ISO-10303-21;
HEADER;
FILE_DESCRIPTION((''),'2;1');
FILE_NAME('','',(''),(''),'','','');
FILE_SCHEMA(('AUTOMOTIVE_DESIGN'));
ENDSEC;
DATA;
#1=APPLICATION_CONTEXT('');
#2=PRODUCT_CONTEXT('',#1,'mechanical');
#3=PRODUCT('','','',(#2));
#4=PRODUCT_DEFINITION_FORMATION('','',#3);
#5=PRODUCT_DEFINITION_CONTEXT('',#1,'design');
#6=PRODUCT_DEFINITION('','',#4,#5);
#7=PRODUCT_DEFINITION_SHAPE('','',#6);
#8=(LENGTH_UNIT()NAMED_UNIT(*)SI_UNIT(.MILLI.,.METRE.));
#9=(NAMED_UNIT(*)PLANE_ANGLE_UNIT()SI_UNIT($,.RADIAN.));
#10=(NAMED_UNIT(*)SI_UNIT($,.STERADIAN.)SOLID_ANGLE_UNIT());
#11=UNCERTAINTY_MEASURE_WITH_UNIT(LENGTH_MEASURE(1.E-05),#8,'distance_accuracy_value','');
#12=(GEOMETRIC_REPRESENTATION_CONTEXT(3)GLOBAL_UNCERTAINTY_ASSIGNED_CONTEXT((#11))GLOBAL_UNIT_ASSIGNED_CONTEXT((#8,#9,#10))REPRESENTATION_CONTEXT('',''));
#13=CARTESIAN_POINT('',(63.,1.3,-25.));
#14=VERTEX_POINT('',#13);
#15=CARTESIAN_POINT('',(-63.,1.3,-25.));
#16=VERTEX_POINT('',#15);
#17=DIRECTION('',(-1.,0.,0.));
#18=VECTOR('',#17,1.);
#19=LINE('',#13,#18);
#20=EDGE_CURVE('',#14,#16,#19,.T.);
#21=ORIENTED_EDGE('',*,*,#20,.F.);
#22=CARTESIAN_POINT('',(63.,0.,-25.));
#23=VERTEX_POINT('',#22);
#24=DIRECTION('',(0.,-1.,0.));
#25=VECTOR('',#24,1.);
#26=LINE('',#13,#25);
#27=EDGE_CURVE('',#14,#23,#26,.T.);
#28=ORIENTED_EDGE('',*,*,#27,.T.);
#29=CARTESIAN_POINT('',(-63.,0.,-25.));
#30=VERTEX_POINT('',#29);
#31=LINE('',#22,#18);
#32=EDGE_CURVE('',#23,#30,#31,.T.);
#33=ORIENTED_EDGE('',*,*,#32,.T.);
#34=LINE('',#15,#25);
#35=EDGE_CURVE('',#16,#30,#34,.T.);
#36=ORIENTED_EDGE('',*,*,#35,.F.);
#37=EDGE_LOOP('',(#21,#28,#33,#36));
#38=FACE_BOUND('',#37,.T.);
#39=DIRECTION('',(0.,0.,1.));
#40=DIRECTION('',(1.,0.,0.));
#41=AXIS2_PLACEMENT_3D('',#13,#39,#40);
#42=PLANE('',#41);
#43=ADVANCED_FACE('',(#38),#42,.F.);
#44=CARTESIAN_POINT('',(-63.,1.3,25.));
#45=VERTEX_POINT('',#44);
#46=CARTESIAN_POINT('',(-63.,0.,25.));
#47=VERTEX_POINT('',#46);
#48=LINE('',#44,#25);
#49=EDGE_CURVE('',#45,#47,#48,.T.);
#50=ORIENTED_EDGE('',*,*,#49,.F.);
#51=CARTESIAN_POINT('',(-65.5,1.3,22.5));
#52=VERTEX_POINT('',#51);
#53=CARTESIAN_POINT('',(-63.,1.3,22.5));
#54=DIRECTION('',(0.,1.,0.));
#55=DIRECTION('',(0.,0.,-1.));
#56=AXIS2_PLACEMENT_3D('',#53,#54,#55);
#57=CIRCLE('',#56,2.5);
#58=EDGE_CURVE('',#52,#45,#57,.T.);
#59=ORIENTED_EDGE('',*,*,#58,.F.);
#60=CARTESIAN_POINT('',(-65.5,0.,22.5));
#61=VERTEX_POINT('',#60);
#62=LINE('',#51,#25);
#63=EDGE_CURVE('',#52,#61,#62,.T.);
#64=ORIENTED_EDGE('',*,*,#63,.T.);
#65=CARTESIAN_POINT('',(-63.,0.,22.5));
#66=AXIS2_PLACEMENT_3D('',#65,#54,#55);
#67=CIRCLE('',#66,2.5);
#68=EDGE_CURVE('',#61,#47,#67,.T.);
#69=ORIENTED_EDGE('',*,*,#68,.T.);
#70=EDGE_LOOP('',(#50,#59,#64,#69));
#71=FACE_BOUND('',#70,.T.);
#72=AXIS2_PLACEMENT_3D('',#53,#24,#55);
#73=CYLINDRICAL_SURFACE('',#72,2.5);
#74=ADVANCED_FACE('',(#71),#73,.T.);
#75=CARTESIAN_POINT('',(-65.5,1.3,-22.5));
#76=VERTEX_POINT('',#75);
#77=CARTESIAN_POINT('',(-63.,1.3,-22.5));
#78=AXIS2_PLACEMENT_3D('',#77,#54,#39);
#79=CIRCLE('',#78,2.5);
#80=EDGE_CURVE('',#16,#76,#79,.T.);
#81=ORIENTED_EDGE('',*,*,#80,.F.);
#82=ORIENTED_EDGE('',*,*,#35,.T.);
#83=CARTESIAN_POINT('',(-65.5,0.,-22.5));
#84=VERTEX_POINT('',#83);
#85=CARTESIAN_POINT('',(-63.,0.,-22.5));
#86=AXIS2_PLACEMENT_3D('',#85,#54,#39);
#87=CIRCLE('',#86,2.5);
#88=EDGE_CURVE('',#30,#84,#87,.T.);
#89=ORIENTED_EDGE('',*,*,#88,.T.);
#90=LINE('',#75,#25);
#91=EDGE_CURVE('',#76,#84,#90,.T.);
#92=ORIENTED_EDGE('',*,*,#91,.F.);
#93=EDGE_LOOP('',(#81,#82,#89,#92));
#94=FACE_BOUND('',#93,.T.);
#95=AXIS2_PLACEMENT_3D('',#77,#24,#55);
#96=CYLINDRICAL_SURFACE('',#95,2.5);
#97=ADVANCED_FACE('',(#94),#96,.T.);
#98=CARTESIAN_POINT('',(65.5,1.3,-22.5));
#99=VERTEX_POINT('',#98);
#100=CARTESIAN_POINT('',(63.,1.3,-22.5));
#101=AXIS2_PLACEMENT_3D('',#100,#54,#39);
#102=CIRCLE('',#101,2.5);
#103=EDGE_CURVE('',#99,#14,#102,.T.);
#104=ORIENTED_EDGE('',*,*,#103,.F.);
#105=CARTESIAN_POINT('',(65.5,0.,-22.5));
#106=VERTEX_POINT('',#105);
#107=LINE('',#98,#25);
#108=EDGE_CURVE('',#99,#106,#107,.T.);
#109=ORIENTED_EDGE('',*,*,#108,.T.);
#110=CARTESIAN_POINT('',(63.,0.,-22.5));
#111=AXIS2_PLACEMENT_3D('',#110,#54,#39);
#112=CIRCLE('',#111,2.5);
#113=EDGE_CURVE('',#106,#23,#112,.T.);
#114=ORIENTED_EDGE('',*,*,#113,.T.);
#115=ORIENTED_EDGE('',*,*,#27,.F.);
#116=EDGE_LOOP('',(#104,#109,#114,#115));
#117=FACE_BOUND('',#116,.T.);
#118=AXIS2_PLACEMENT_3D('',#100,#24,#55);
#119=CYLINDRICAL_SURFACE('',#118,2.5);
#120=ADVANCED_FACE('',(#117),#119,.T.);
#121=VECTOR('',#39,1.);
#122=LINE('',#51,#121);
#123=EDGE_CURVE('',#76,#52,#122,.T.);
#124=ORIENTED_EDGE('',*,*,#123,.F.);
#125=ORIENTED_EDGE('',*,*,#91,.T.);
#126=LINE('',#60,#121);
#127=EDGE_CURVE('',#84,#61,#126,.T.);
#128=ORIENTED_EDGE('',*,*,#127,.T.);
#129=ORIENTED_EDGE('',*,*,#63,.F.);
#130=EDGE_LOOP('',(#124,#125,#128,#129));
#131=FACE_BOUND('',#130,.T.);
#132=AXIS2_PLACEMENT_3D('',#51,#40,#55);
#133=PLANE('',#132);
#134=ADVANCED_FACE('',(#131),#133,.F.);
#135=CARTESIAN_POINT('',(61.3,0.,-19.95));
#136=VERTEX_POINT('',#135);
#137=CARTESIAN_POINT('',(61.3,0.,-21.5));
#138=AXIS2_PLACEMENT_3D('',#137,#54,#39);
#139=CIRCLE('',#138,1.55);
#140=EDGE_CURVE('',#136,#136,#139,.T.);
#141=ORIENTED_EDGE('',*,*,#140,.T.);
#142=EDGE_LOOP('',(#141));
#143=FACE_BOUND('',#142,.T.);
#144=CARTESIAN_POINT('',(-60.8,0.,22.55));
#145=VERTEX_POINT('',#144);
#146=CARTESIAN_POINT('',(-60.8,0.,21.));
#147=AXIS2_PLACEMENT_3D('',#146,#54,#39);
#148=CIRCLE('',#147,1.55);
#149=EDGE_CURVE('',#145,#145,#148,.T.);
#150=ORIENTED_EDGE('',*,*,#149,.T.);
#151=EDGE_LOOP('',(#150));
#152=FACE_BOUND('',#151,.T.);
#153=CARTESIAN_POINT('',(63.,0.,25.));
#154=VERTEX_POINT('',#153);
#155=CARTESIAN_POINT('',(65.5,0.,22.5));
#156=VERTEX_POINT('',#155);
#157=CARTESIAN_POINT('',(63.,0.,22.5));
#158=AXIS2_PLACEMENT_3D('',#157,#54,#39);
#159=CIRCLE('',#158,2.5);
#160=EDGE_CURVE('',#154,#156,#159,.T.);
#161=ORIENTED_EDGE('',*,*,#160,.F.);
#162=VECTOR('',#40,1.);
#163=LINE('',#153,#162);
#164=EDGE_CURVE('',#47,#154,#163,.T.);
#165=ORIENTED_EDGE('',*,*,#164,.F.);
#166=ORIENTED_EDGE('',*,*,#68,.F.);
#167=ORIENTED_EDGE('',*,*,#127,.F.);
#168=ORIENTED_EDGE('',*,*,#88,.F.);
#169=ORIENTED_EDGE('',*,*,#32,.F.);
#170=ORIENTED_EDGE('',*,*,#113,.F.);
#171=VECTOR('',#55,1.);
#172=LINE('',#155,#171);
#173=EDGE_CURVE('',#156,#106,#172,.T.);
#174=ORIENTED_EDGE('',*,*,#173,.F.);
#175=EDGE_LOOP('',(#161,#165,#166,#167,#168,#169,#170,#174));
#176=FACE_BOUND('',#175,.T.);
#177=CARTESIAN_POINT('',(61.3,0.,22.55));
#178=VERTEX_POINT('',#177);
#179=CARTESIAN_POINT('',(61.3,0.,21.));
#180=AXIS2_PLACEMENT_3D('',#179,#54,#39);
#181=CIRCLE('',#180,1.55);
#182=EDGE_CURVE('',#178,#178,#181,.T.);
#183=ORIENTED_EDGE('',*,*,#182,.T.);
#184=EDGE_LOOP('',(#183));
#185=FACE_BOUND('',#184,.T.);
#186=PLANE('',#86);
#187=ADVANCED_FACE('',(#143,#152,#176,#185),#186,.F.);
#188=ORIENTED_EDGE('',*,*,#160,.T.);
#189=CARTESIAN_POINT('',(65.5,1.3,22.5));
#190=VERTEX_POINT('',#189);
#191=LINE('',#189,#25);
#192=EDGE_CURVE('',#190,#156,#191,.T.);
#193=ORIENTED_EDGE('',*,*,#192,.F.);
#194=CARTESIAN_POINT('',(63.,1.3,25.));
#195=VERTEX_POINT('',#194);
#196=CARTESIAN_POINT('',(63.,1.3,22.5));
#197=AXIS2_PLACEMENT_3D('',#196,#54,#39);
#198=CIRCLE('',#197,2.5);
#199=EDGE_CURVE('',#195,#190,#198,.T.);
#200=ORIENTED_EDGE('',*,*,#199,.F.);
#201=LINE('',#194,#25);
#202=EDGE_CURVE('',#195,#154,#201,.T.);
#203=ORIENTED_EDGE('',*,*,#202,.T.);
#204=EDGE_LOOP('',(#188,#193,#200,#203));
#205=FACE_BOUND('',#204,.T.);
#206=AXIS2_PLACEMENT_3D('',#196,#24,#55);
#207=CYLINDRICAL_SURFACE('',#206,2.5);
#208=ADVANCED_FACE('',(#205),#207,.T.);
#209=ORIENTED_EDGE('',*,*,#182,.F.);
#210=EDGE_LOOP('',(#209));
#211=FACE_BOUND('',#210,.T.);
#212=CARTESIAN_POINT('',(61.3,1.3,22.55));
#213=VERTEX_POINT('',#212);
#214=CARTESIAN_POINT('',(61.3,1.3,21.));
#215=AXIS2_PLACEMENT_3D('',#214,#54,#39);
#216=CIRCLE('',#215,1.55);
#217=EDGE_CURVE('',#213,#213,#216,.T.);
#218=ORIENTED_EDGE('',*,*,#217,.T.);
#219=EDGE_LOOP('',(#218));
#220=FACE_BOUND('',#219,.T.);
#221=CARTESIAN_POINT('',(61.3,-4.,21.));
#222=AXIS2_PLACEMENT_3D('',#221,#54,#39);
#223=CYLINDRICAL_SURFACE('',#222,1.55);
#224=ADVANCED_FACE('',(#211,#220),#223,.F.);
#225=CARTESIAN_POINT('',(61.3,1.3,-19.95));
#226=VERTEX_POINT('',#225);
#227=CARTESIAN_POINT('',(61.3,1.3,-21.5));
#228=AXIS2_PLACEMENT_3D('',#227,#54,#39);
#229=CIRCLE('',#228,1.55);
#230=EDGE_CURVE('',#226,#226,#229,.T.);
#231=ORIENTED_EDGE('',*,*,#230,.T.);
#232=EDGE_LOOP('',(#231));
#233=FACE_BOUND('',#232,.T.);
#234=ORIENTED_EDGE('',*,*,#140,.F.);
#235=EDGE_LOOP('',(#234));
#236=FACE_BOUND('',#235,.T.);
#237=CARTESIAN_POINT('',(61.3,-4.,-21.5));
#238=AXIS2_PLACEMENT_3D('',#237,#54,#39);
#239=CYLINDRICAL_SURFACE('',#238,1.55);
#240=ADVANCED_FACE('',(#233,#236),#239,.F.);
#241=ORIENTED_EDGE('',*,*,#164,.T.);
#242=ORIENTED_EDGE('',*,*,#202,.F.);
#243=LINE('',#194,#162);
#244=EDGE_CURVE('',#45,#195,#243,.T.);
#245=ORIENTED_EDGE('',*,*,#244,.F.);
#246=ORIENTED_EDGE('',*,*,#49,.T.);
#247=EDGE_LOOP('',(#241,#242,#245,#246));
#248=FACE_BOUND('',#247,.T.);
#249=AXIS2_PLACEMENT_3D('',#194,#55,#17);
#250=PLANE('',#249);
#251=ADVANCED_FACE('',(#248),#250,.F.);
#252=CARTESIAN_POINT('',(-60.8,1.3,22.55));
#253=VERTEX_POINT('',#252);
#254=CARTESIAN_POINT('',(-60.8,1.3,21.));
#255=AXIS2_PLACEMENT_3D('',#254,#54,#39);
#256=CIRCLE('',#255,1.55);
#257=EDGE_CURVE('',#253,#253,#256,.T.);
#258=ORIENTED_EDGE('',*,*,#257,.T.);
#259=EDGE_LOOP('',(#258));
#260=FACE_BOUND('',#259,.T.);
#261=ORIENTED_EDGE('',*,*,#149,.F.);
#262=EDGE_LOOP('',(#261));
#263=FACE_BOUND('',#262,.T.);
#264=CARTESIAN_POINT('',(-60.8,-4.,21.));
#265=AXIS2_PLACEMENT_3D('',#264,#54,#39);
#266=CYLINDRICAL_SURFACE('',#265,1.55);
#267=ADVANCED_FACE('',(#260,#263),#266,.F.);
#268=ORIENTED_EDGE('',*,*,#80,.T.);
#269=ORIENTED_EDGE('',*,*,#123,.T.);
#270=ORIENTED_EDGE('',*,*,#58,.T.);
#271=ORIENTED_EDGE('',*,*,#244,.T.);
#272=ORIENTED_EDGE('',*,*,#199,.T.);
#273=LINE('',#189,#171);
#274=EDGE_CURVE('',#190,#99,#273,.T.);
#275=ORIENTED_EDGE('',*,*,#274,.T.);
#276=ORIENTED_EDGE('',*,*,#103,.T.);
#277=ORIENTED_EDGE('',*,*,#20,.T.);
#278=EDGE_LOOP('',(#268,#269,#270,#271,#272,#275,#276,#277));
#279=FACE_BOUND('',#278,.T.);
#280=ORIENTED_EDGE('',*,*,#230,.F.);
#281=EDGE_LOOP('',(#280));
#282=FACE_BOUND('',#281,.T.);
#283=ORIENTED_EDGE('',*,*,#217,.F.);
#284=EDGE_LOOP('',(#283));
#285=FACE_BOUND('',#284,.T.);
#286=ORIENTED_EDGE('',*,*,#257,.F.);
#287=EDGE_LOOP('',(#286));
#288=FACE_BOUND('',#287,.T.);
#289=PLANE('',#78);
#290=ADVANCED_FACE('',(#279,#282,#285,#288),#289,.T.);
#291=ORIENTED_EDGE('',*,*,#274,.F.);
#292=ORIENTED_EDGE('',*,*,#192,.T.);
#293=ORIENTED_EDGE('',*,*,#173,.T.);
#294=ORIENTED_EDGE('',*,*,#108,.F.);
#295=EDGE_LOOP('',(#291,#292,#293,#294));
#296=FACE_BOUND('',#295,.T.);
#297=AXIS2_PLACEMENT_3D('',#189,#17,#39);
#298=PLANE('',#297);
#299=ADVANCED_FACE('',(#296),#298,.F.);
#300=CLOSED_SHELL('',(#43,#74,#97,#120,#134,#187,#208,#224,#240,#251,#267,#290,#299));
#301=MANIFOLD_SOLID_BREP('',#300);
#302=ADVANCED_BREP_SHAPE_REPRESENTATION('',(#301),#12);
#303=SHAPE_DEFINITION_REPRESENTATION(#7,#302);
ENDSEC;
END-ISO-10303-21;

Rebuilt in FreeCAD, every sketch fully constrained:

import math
import FreeCAD as App
import Part
import Sketcher

doc = App.newDocument("Part")
params = doc.addObject("Spreadsheet::Sheet", "Params")
for row, (alias, value) in enumerate([
    ("sketch1_radius", "2.5 mm"),
    ("sketch1_width", "126 mm"),
    ("sketch1_height", "45 mm"),
    ("pad1_length", "1.3 mm"),
    ("sketch2_diameter", "3.1 mm"),
    ("pocket1_length", "5.3 mm"),
], start=1):
    params.set(f"A{row}", alias)
    params.set(f"B{row}", "=" + value)
    params.setAlias(f"B{row}", alias)

body = doc.addObject("PartDesign::Body", "Body")

# Sketch on XZ plane
sketch1 = body.newObject("Sketcher::SketchObject", "Sketch")
sketch1.AttachmentSupport = (doc.getObject("XZ_Plane"), [""])
sketch1.MapMode = "FlatFace"
sketch1.addGeometry([
    Part.LineSegment(App.Vector(-63, 25, 0), App.Vector(63, 25, 0)),  # 0
    Part.ArcOfCircle(Part.Circle(App.Vector(63, 22.5, 0), App.Vector(0, 0, 1), 2.5), math.radians(0), math.radians(90)),  # 1
    Part.LineSegment(App.Vector(65.5, 22.5, 0), App.Vector(65.5, -22.5, 0)),  # 2
    Part.ArcOfCircle(Part.Circle(App.Vector(63, -22.5, 0), App.Vector(0, 0, 1), 2.5), math.radians(-90), math.radians(0)),  # 3
    Part.LineSegment(App.Vector(63, -25, 0), App.Vector(-63, -25, 0)),  # 4
    Part.ArcOfCircle(Part.Circle(App.Vector(-63, -22.5, 0), App.Vector(0, 0, 1), 2.5), math.radians(180), math.radians(270)),  # 5
    Part.LineSegment(App.Vector(-65.5, -22.5, 0), App.Vector(-65.5, 22.5, 0)),  # 6
    Part.ArcOfCircle(Part.Circle(App.Vector(-63, 22.5, 0), App.Vector(0, 0, 1), 2.5), math.radians(90), math.radians(180)),  # 7
], False)
sketch1.addConstraint([
    Sketcher.Constraint("Tangent", 0, 2, 1, 2),
    Sketcher.Constraint("Tangent", 1, 1, 2, 1),
    Sketcher.Constraint("Tangent", 2, 2, 3, 2),
    Sketcher.Constraint("Tangent", 3, 1, 4, 1),
    Sketcher.Constraint("Tangent", 4, 2, 5, 2),
    Sketcher.Constraint("Tangent", 5, 1, 6, 1),
    Sketcher.Constraint("Tangent", 6, 2, 7, 2),
    Sketcher.Constraint("Tangent", 7, 1, 0, 1),
    Sketcher.Constraint("Horizontal", 0),
    Sketcher.Constraint("Vertical", 2),
    Sketcher.Constraint("Horizontal", 4),
    Sketcher.Constraint("Vertical", 6),
    Sketcher.Constraint("Equal", 1, 3),
    Sketcher.Constraint("Equal", 3, 5),
    Sketcher.Constraint("Equal", 5, 7),
    Sketcher.Constraint("Symmetric", 1, 3, 5, 3, -1, 1),
    Sketcher.Constraint("Radius", 1, 2.5),
    Sketcher.Constraint("DistanceX", 0, 1, 0, 2, 126.0),
    Sketcher.Constraint("DistanceY", 2, 2, 2, 1, 45.0),
])
sketch1.setExpression("Constraints[16]", "Params.sketch1_radius")
sketch1.setExpression("Constraints[17]", "Params.sketch1_width")
sketch1.setExpression("Constraints[18]", "Params.sketch1_height")
pad1 = body.newObject("PartDesign::Pad", "Pad")
pad1.Profile = sketch1
pad1.setExpression("Length", "Params.pad1_length")
pad1.Reversed = True

# Sketch on XZ plane
sketch2 = body.newObject("Sketcher::SketchObject", "Sketch001")
sketch2.AttachmentSupport = (doc.getObject("XZ_Plane"), [""])
sketch2.MapMode = "FlatFace"
sketch2.AttachmentOffset = App.Placement(App.Vector(0, 0, -1.3), App.Rotation())
sketch2.addGeometry([
    Part.Circle(App.Vector(-60.8, 21, 0), App.Vector(0, 0, 1), 1.6),
    Part.Circle(App.Vector(61.3, -21.5, 0), App.Vector(0, 0, 1), 1.6),
    Part.Circle(App.Vector(61.3, 21, 0), App.Vector(0, 0, 1), 1.6),
], False)
sketch2.addConstraint([
    Sketcher.Constraint("Equal", 0, 1),
    Sketcher.Constraint("Equal", 1, 2),
    Sketcher.Constraint("Horizontal", 0, 3, 2, 3),
    Sketcher.Constraint("Vertical", 1, 3, 2, 3),
    Sketcher.Constraint("Diameter", 0, 3.1),
    Sketcher.Constraint("DistanceY", -1, 1, 0, 3, 21.0),
    Sketcher.Constraint("DistanceX", 0, 3, -1, 1, 60.8),
    Sketcher.Constraint("DistanceX", -1, 1, 1, 3, 61.3),
    Sketcher.Constraint("DistanceY", 1, 3, -1, 1, 21.5),
])
sketch2.setExpression("Constraints[4]", "Params.sketch2_diameter")
pocket1 = body.newObject("PartDesign::Pocket", "Pocket")
pocket1.Profile = sketch2
pocket1.setExpression("Length", "Params.pocket1_length")
pocket1.Reversed = True

doc.recompute()
